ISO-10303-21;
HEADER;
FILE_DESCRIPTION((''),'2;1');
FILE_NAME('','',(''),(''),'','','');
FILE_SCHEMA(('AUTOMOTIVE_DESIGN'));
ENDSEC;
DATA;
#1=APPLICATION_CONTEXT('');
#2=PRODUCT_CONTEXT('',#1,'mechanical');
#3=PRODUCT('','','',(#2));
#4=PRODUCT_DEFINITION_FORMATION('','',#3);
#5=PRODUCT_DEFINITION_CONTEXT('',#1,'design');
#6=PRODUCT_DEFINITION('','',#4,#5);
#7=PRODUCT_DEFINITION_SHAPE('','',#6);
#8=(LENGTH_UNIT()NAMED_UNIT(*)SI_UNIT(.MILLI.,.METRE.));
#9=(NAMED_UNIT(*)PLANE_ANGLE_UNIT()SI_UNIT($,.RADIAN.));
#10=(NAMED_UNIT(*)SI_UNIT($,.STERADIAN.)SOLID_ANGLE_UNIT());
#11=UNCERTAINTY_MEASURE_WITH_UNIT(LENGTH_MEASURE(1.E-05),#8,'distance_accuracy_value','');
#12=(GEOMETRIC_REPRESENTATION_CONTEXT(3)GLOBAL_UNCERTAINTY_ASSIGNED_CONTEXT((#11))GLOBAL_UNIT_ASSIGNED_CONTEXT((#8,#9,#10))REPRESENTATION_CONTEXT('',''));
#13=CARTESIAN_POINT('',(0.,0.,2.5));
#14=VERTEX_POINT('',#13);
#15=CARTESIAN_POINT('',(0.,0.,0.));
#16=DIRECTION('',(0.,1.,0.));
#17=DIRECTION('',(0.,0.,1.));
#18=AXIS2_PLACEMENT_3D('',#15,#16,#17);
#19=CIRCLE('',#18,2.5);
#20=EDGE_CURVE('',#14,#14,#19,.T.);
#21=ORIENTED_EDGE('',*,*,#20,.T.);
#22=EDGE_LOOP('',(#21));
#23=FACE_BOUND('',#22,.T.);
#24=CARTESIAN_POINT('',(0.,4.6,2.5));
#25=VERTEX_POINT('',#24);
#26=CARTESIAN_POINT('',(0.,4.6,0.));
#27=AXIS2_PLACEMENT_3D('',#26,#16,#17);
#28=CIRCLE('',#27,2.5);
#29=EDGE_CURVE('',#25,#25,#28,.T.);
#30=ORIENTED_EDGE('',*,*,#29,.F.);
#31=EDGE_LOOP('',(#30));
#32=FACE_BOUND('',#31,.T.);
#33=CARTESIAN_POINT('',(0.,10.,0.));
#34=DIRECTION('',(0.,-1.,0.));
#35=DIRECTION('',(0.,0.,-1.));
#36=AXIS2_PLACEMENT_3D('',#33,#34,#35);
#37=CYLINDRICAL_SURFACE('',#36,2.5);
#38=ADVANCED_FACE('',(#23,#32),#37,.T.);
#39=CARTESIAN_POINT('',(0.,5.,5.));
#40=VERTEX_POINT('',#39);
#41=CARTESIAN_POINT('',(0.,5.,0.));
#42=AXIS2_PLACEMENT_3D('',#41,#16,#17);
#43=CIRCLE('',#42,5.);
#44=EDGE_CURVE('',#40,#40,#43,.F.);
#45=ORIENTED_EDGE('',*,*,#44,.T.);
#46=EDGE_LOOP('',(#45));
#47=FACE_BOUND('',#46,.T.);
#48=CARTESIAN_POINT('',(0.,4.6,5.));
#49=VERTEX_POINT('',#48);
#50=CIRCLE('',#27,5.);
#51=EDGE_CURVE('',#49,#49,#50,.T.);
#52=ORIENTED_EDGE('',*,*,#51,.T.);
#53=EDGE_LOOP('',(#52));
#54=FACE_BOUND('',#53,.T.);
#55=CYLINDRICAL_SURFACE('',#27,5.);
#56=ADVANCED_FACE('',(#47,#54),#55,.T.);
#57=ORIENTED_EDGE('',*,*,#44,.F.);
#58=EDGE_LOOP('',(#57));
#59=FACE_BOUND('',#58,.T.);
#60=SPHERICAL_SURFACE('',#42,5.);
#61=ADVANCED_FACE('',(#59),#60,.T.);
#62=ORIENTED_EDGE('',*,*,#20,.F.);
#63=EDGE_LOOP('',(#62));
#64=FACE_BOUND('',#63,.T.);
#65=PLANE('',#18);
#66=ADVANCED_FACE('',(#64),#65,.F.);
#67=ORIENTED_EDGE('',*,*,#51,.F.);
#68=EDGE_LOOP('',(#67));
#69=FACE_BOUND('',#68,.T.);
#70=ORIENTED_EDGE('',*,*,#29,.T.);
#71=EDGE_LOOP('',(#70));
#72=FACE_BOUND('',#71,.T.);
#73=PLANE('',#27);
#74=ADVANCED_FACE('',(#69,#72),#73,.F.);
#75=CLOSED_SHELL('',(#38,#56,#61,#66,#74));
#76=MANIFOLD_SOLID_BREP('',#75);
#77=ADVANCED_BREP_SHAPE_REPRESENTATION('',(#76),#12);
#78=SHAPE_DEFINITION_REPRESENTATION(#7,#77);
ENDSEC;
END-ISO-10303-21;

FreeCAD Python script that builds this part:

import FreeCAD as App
import Part
import Sketcher
from FreeCAD import Vector


def edges_at(feature, points):
    """Names of the edges that pass closest to the given points."""
    edges = feature.Shape.Edges
    near = lambda p: min(range(len(edges)), key=lambda i: edges[i].distToShape(Part.Vertex(*p))[0])
    return sorted({f"Edge{near(p) + 1}" for p in points})

doc = App.newDocument("Part")
body = doc.addObject("PartDesign::Body", "Body")

sketch1 = doc.addObject("Sketcher::SketchObject", "Sketch")
body.addObject(sketch1)
sketch1.AttachmentSupport = (doc.XZ_Plane, [""])
sketch1.MapMode = "FlatFace"
sketch1.addGeometry(Part.Circle(Vector(0, 0, 0), Vector(0, 0, 1), 2.5), False)
sketch1.addConstraint(Sketcher.Constraint("Coincident", 0, 3, -1, 1))
sketch1.addConstraint(Sketcher.Constraint("Diameter", 0, 5.0))
pad1 = doc.addObject("PartDesign::Pad", "Pad")
body.addObject(pad1)
pad1.Profile = sketch1
pad1.Length = 10
pad1.Reversed = True

sketch2 = doc.addObject("Sketcher::SketchObject", "Sketch001")
body.addObject(sketch2)
sketch2.AttachmentSupport = (doc.XZ_Plane, [""])
sketch2.MapMode = "FlatFace"
sketch2.AttachmentOffset = App.Placement(Vector(0, 0, -10), App.Rotation())
sketch2.addGeometry(Part.Circle(Vector(0, 0, 0), Vector(0, 0, 1), 5), False)
sketch2.addConstraint(Sketcher.Constraint("Coincident", 0, 3, -1, 1))
sketch2.addConstraint(Sketcher.Constraint("Diameter", 0, 10.0))
pad2 = doc.addObject("PartDesign::Pad", "Pad001")
body.addObject(pad2)
pad2.Profile = sketch2
pad2.Length = 5.4
doc.recompute()

fillet = doc.addObject("PartDesign::Fillet", "Fillet")
body.addObject(fillet)
fillet.Base = (pad2, edges_at(pad2, [(-5, 10, 0)]))
fillet.Radius = 5

doc.recompute()
